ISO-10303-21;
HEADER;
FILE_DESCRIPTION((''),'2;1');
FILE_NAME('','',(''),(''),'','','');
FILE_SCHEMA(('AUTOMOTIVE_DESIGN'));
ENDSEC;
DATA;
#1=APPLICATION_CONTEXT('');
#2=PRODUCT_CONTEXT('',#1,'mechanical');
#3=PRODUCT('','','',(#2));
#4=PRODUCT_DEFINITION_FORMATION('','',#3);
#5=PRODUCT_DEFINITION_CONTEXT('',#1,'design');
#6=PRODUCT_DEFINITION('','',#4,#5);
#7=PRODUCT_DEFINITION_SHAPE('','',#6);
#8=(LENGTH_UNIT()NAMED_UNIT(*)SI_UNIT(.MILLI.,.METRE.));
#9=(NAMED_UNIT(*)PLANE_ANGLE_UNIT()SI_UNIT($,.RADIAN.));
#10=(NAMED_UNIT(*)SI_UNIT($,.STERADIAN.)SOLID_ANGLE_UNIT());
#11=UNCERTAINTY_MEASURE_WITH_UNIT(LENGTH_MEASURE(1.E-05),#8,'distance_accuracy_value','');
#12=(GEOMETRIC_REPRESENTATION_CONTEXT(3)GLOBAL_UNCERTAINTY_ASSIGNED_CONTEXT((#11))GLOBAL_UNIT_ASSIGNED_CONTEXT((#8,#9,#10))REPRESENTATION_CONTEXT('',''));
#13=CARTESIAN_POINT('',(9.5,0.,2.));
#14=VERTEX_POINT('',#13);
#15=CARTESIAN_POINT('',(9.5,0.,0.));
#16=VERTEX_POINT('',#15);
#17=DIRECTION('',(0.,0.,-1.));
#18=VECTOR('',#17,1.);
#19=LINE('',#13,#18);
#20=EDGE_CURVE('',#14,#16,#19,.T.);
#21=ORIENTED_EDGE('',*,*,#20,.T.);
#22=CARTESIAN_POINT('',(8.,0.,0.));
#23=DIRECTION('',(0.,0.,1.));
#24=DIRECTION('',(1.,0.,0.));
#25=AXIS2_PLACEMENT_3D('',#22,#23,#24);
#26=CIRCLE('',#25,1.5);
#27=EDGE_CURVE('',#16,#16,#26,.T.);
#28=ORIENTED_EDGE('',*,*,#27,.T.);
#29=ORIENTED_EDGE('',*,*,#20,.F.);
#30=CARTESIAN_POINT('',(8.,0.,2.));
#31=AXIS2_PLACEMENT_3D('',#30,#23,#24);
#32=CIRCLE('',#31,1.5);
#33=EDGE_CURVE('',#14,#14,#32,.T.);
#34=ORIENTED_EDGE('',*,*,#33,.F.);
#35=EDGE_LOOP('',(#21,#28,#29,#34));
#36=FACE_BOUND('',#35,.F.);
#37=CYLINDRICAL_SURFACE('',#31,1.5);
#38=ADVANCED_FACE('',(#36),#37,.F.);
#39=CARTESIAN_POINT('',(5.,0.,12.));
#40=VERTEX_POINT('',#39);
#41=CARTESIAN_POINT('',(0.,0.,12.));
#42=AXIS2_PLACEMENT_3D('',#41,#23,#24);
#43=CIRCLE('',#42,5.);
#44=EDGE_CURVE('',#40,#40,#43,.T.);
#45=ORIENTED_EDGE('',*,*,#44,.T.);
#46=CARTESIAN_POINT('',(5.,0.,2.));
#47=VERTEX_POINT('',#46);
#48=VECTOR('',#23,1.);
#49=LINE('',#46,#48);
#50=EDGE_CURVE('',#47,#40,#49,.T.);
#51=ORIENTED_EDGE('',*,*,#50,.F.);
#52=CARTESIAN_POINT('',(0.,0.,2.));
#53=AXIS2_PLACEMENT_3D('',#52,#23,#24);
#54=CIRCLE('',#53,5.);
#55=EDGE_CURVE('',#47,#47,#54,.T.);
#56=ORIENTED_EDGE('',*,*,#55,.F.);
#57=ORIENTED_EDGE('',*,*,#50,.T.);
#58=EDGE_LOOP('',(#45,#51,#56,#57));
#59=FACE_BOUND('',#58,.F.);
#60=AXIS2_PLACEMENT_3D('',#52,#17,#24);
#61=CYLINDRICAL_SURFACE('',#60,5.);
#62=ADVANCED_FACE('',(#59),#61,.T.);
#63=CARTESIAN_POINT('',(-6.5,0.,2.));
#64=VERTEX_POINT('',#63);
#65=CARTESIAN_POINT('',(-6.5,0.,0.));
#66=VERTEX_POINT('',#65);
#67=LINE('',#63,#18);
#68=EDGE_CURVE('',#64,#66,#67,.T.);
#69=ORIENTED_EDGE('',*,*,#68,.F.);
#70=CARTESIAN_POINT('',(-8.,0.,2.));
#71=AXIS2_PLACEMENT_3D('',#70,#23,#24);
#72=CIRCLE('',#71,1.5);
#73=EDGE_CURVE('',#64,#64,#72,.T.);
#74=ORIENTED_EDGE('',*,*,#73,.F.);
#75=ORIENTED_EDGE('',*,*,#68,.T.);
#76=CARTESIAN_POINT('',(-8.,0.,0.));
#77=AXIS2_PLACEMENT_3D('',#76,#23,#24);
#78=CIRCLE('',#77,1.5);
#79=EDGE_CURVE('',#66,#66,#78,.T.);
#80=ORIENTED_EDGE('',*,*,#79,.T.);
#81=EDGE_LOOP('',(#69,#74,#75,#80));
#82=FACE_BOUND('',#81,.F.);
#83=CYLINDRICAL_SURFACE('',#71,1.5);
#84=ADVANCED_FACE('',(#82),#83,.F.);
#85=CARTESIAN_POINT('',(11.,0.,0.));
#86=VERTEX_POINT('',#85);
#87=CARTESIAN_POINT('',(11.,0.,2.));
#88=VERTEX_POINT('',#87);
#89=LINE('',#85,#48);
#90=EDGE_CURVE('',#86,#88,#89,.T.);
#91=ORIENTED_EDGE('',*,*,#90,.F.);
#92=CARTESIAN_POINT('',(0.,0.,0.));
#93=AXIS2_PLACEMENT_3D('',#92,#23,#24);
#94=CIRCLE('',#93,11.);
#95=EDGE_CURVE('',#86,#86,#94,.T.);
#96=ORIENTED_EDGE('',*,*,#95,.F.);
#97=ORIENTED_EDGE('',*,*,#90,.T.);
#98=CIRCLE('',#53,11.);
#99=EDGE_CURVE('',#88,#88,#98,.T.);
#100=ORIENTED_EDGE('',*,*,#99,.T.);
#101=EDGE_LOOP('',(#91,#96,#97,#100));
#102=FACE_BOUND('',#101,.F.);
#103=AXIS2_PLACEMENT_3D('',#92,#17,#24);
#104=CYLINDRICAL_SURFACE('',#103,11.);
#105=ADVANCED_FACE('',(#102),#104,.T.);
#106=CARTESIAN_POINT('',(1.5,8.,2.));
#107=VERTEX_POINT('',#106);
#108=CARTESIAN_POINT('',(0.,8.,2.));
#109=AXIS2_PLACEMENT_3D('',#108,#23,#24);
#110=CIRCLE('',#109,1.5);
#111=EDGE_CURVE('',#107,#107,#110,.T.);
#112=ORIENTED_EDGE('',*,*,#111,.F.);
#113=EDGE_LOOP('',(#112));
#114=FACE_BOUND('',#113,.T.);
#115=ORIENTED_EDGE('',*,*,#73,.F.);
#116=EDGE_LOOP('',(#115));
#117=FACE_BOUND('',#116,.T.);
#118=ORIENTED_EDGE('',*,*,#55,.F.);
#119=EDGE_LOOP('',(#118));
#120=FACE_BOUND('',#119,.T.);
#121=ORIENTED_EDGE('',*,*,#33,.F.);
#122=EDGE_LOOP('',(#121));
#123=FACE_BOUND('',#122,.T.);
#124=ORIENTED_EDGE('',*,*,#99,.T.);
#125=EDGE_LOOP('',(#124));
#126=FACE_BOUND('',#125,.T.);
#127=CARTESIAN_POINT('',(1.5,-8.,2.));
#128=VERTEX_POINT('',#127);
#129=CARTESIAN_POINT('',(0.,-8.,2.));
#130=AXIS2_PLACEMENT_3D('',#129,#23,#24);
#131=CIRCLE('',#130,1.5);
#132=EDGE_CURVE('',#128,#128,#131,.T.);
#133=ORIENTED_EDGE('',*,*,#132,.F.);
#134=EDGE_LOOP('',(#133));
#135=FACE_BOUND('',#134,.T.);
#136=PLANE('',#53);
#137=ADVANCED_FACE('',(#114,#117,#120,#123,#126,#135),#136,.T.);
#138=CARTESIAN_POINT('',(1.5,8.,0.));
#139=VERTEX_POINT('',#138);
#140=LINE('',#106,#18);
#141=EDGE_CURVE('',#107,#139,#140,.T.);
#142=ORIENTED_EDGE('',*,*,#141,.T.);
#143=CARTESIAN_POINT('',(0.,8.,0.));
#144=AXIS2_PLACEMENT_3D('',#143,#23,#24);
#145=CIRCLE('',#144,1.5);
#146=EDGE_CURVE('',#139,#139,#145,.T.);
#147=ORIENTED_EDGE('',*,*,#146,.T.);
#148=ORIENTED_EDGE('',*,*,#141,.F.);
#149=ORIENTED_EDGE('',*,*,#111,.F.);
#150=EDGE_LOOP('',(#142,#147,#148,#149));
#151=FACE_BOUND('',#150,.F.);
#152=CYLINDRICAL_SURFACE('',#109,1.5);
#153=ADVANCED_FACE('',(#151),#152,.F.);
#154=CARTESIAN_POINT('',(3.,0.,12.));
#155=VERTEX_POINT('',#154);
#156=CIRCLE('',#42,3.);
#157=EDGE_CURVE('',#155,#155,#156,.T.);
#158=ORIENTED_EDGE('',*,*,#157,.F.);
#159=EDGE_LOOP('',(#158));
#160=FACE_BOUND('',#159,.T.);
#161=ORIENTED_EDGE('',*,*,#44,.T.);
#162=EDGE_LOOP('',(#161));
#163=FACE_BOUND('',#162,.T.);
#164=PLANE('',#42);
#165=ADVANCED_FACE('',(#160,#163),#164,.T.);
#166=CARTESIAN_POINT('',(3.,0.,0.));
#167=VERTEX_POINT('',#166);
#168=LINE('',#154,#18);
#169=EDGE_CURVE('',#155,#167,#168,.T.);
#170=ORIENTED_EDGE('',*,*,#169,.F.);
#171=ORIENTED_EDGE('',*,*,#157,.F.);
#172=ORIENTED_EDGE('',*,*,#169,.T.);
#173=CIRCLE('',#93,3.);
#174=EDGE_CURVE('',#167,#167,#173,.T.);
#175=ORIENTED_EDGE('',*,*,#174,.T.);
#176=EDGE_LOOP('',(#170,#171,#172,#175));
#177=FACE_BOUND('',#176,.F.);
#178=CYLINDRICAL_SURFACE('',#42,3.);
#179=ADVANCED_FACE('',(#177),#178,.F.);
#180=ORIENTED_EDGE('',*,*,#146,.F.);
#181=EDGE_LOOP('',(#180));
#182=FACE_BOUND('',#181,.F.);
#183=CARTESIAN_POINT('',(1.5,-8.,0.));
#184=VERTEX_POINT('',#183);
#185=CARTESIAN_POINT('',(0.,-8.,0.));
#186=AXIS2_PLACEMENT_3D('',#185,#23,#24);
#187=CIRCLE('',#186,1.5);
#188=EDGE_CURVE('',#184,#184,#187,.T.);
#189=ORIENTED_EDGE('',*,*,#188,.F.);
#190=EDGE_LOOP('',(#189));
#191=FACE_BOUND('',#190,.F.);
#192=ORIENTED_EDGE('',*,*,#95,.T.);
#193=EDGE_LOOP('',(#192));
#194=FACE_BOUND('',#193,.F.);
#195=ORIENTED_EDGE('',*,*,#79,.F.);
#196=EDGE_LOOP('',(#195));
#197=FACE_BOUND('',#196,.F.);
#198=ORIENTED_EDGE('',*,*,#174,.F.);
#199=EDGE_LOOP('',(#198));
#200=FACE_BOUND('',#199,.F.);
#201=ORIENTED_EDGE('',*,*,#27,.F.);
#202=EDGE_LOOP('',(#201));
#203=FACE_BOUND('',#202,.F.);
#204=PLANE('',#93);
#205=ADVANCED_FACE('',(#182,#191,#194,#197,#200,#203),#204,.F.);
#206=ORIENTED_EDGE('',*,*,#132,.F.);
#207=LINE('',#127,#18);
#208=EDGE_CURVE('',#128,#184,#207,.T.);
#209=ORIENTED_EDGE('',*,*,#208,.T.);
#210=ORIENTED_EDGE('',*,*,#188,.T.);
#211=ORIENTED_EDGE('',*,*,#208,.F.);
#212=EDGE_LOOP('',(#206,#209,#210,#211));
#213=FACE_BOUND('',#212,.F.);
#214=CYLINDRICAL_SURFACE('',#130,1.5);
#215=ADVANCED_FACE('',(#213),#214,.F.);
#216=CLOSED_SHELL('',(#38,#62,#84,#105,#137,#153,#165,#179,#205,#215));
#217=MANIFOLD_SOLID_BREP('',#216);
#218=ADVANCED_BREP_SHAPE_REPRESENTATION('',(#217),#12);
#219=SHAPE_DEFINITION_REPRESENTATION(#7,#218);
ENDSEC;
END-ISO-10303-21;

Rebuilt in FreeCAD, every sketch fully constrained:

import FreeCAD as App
import Part
import Sketcher
from FreeCAD import Vector
Q = App.Units.Quantity

doc = App.newDocument("Part")
body = doc.addObject("PartDesign::Body", "Body")

sketch1 = doc.addObject("Sketcher::SketchObject", "Sketch")
body.addObject(sketch1)
sketch1.AttachmentSupport = (doc.XY_Plane, [""])
sketch1.MapMode = "FlatFace"
sketch1.addGeometry(Part.Circle(Vector(0, 0, 0), Vector(0, 0, 1), 11), False)
sketch1.addConstraint([
    Sketcher.Constraint("Coincident", 0, 3, -1, 1),
    Sketcher.Constraint("Diameter", 0, Q("22 mm")),
])
pad1 = doc.addObject("PartDesign::Pad", "Pad")
body.addObject(pad1)
pad1.Profile = sketch1
pad1.Length = 2

sketch2 = doc.addObject("Sketcher::SketchObject", "Sketch001")
body.addObject(sketch2)
sketch2.AttachmentSupport = (doc.XY_Plane, [""])
sketch2.MapMode = "FlatFace"
sketch2.AttachmentOffset = App.Placement(Vector(0, 0, 2), App.Rotation())
sketch2.addGeometry(Part.Circle(Vector(0, 0, 0), Vector(0, 0, 1), 5), False)
sketch2.addConstraint([
    Sketcher.Constraint("Coincident", 0, 3, -1, 1),
    Sketcher.Constraint("Diameter", 0, Q("10 mm")),
])
pad2 = doc.addObject("PartDesign::Pad", "Pad001")
body.addObject(pad2)
pad2.Profile = sketch2
pad2.Length = 10

sketch3 = doc.addObject("Sketcher::SketchObject", "Sketch002")
body.addObject(sketch3)
sketch3.AttachmentSupport = (doc.XY_Plane, [""])
sketch3.MapMode = "FlatFace"
sketch3.AttachmentOffset = App.Placement(Vector(0, 0, 12), App.Rotation())
sketch3.addGeometry(Part.Circle(Vector(0, 0, 0), Vector(0, 0, 1), 3), False)
sketch3.addConstraint([
    Sketcher.Constraint("Coincident", 0, 3, -1, 1),
    Sketcher.Constraint("Diameter", 0, Q("6 mm")),
])
pocket1 = doc.addObject("PartDesign::Pocket", "Pocket")
body.addObject(pocket1)
pocket1.Profile = sketch3
pocket1.Type = "ThroughAll"

sketch4 = doc.addObject("Sketcher::SketchObject", "Sketch003")
body.addObject(sketch4)
sketch4.AttachmentSupport = (doc.XY_Plane, [""])
sketch4.MapMode = "FlatFace"
sketch4.AttachmentOffset = App.Placement(Vector(0, 0, 2), App.Rotation())
sketch4.addGeometry(Part.Circle(Vector(-8, 0, 0), Vector(0, 0, 1), 1.5), False)
sketch4.addConstraint([
    Sketcher.Constraint("PointOnObject", 0, 3, -1),
    Sketcher.Constraint("Diameter", 0, Q("3 mm")),
    Sketcher.Constraint("DistanceX", 0, 3, -1, 1, Q("8 mm")),
])
pocket2 = doc.addObject("PartDesign::Pocket", "Pocket001")
body.addObject(pocket2)
pocket2.Profile = sketch4
pocket2.Type = "UpToFirst"

sketch5 = doc.addObject("Sketcher::SketchObject", "Sketch004")
body.addObject(sketch5)
sketch5.AttachmentSupport = (doc.XY_Plane, [""])
sketch5.MapMode = "FlatFace"
sketch5.AttachmentOffset = App.Placement(Vector(0, 0, 2), App.Rotation())
sketch5.addGeometry(Part.Circle(Vector(0, 8, 0), Vector(0, 0, 1), 1.5), False)
sketch5.addConstraint([
    Sketcher.Constraint("PointOnObject", 0, 3, -2),
    Sketcher.Constraint("Diameter", 0, Q("3 mm")),
    Sketcher.Constraint("DistanceY", -1, 1, 0, 3, Q("8 mm")),
])
pocket3 = doc.addObject("PartDesign::Pocket", "Pocket002")
body.addObject(pocket3)
pocket3.Profile = sketch5
pocket3.Type = "UpToFirst"

sketch6 = doc.addObject("Sketcher::SketchObject", "Sketch005")
body.addObject(sketch6)
sketch6.AttachmentSupport = (doc.XY_Plane, [""])
sketch6.MapMode = "FlatFace"
sketch6.AttachmentOffset = App.Placement(Vector(0, 0, 2), App.Rotation())
sketch6.addGeometry(Part.Circle(Vector(8, 0, 0), Vector(0, 0, 1), 1.5), False)
sketch6.addConstraint([
    Sketcher.Constraint("PointOnObject", 0, 3, -1),
    Sketcher.Constraint("Diameter", 0, Q("3 mm")),
    Sketcher.Constraint("DistanceX", -1, 1, 0, 3, Q("8 mm")),
])
pocket4 = doc.addObject("PartDesign::Pocket", "Pocket003")
body.addObject(pocket4)
pocket4.Profile = sketch6
pocket4.Type = "UpToFirst"

sketch7 = doc.addObject("Sketcher::SketchObject", "Sketch006")
body.addObject(sketch7)
sketch7.AttachmentSupport = (doc.XY_Plane, [""])
sketch7.MapMode = "FlatFace"
sketch7.AttachmentOffset = App.Placement(Vector(0, 0, 2), App.Rotation())
sketch7.addGeometry(Part.Circle(Vector(0, -8, 0), Vector(0, 0, 1), 1.5), False)
sketch7.addConstraint([
    Sketcher.Constraint("PointOnObject", 0, 3, -2),
    Sketcher.Constraint("Diameter", 0, Q("3 mm")),
    Sketcher.Constraint("DistanceY", 0, 3, -1, 1, Q("8 mm")),
])
pocket5 = doc.addObject("PartDesign::Pocket", "Pocket004")
body.addObject(pocket5)
pocket5.Profile = sketch7
pocket5.Type = "UpToFirst"

doc.recompute()
